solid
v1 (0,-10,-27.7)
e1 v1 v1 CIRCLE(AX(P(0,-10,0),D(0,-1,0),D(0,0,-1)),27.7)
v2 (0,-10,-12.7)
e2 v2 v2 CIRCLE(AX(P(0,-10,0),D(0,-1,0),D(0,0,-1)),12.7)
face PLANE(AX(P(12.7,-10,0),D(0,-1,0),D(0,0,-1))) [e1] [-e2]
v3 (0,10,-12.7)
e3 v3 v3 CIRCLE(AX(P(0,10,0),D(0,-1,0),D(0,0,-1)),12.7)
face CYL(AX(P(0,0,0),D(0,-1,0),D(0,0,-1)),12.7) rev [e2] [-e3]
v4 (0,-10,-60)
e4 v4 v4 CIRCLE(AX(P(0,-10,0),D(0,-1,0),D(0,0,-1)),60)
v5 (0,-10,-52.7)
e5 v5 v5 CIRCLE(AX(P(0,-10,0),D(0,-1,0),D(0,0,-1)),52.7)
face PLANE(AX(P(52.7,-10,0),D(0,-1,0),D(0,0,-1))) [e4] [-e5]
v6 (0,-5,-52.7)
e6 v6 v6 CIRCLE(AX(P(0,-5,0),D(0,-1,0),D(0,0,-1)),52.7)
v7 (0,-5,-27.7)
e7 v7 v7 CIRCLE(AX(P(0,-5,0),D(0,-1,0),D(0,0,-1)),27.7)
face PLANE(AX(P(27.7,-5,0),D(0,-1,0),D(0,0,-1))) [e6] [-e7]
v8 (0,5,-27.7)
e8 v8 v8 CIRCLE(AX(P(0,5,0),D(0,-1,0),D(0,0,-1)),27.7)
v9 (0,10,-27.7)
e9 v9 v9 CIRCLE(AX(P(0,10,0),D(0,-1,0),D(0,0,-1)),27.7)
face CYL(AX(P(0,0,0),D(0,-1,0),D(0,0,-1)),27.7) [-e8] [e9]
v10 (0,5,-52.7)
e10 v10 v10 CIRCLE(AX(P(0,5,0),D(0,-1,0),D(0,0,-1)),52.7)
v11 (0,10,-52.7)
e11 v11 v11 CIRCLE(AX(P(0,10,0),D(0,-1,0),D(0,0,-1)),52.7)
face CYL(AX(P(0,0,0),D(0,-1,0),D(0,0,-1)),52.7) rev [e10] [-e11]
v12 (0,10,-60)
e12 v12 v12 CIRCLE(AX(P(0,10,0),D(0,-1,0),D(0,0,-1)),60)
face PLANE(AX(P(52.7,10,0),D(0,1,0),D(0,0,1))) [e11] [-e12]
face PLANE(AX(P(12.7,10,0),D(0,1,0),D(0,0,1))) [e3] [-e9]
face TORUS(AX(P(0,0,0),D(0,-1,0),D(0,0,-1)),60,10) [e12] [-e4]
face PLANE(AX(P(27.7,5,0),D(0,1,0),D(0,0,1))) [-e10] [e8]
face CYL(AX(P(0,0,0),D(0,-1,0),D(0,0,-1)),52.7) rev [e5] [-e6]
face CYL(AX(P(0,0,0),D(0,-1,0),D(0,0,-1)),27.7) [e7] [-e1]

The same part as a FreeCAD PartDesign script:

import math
import FreeCAD as App
import Part
import Sketcher

V = App.Vector
Q = App.Units.Quantity

doc = App.newDocument("Part")
params = doc.addObject("Spreadsheet::Sheet", "Params")
for row, (alias, value) in enumerate([
    ("sketch1_radius", "10 mm"),
    ("sketch1_width", "15 mm"),
    ("sketch1_width2", "25 mm"),
    ("sketch1_height", "5 mm"),
    ("sketch1_width3", "7.3 mm"),
    ("revolution_angle", "360 deg"),
], start=1):
    params.set(f"A{row}", alias)
    params.set(f"B{row}", "=" + value)
    params.setAlias(f"B{row}", alias)

body = doc.addObject("PartDesign::Body", "Body")

# Sketch on XY plane
sketch1 = body.newObject("Sketcher::SketchObject", "Sketch")
sketch1.AttachmentSupport = (doc.getObject("XY_Plane"), [""])
sketch1.MapMode = "FlatFace"
sketch1.addGeometry([
    Part.LineSegment(V(13, 10, 0), V(13, -10, 0)),  # 0
    Part.LineSegment(V(13, -10, 0), V(28, -10, 0)),  # 1
    Part.LineSegment(V(28, -10, 0), V(28, -5, 0)),  # 2
    Part.LineSegment(V(28, -5, 0), V(53, -5, 0)),  # 3
    Part.LineSegment(V(53, -5, 0), V(53, -10, 0)),  # 4
    Part.LineSegment(V(53, -10, 0), V(60, -10, 0)),  # 5
    Part.ArcOfCircle(Part.Circle(V(60, 0, 0), V(0, 0, 1), 10), math.radians(-90), math.radians(90)),  # 6
    Part.LineSegment(V(60, 10, 0), V(53, 10, 0)),  # 7
    Part.LineSegment(V(53, 10, 0), V(53, 5, 0)),  # 8
    Part.LineSegment(V(53, 5, 0), V(28, 5, 0)),  # 9
    Part.LineSegment(V(28, 5, 0), V(28, 10, 0)),  # 10
    Part.LineSegment(V(28, 10, 0), V(13, 10, 0)),  # 11
], False)
sketch1.addConstraint([
    Sketcher.Constraint("Coincident", 0, 2, 1, 1),
    Sketcher.Constraint("Coincident", 1, 2, 2, 1),
    Sketcher.Constraint("Coincident", 2, 2, 3, 1),
    Sketcher.Constraint("Coincident", 3, 2, 4, 1),
    Sketcher.Constraint("Coincident", 4, 2, 5, 1),
    Sketcher.Constraint("Tangent", 5, 2, 6, 1),
    Sketcher.Constraint("Tangent", 6, 2, 7, 1),
    Sketcher.Constraint("Coincident", 7, 2, 8, 1),
    Sketcher.Constraint("Coincident", 8, 2, 9, 1),
    Sketcher.Constraint("Coincident", 9, 2, 10, 1),
    Sketcher.Constraint("Coincident", 10, 2, 11, 1),
    Sketcher.Constraint("Coincident", 11, 2, 0, 1),
    Sketcher.Constraint("Vertical", 0),
    Sketcher.Constraint("Horizontal", 1),
    Sketcher.Constraint("Vertical", 2),
    Sketcher.Constraint("Horizontal", 3),
    Sketcher.Constraint("Vertical", 4),
    Sketcher.Constraint("Horizontal", 5),
    Sketcher.Constraint("Horizontal", 7),
    Sketcher.Constraint("Vertical", 8),
    Sketcher.Constraint("Horizontal", 9),
    Sketcher.Constraint("Vertical", 10),
    Sketcher.Constraint("Horizontal", 11),
    Sketcher.Constraint("Symmetric", 4, 2, 7, 2, -1),
    Sketcher.Constraint("Symmetric", 2, 2, 9, 2, -1),
    Sketcher.Constraint("Horizontal", 1, 2, 4, 2),
    Sketcher.Constraint("Horizontal", 7, 2, 10, 2),
    Sketcher.Constraint("Radius", 6, Q("10 mm")),
    Sketcher.Constraint("DistanceX", 1, 1, 1, 2, Q("15 mm")),
    Sketcher.Constraint("DistanceX", 3, 1, 3, 2, Q("25 mm")),
    Sketcher.Constraint("DistanceY", 2, 1, 2, 2, Q("5 mm")),
    Sketcher.Constraint("DistanceX", 5, 1, 5, 2, Q("7.3 mm")),
    Sketcher.Constraint("DistanceX", -1, 1, 6, 3, Q("60 mm")),
])
sketch1.setExpression("Constraints[27]", "Params.sketch1_radius")
sketch1.setExpression("Constraints[28]", "Params.sketch1_width")
sketch1.setExpression("Constraints[29]", "Params.sketch1_width2")
sketch1.setExpression("Constraints[30]", "Params.sketch1_height")
sketch1.setExpression("Constraints[31]", "Params.sketch1_width3")
revolution = body.newObject("PartDesign::Revolution", "Revolution")
revolution.Profile = sketch1
revolution.ReferenceAxis = (sketch1, ["V_Axis"])
revolution.setExpression("Angle", "Params.revolution_angle")

doc.recompute()
